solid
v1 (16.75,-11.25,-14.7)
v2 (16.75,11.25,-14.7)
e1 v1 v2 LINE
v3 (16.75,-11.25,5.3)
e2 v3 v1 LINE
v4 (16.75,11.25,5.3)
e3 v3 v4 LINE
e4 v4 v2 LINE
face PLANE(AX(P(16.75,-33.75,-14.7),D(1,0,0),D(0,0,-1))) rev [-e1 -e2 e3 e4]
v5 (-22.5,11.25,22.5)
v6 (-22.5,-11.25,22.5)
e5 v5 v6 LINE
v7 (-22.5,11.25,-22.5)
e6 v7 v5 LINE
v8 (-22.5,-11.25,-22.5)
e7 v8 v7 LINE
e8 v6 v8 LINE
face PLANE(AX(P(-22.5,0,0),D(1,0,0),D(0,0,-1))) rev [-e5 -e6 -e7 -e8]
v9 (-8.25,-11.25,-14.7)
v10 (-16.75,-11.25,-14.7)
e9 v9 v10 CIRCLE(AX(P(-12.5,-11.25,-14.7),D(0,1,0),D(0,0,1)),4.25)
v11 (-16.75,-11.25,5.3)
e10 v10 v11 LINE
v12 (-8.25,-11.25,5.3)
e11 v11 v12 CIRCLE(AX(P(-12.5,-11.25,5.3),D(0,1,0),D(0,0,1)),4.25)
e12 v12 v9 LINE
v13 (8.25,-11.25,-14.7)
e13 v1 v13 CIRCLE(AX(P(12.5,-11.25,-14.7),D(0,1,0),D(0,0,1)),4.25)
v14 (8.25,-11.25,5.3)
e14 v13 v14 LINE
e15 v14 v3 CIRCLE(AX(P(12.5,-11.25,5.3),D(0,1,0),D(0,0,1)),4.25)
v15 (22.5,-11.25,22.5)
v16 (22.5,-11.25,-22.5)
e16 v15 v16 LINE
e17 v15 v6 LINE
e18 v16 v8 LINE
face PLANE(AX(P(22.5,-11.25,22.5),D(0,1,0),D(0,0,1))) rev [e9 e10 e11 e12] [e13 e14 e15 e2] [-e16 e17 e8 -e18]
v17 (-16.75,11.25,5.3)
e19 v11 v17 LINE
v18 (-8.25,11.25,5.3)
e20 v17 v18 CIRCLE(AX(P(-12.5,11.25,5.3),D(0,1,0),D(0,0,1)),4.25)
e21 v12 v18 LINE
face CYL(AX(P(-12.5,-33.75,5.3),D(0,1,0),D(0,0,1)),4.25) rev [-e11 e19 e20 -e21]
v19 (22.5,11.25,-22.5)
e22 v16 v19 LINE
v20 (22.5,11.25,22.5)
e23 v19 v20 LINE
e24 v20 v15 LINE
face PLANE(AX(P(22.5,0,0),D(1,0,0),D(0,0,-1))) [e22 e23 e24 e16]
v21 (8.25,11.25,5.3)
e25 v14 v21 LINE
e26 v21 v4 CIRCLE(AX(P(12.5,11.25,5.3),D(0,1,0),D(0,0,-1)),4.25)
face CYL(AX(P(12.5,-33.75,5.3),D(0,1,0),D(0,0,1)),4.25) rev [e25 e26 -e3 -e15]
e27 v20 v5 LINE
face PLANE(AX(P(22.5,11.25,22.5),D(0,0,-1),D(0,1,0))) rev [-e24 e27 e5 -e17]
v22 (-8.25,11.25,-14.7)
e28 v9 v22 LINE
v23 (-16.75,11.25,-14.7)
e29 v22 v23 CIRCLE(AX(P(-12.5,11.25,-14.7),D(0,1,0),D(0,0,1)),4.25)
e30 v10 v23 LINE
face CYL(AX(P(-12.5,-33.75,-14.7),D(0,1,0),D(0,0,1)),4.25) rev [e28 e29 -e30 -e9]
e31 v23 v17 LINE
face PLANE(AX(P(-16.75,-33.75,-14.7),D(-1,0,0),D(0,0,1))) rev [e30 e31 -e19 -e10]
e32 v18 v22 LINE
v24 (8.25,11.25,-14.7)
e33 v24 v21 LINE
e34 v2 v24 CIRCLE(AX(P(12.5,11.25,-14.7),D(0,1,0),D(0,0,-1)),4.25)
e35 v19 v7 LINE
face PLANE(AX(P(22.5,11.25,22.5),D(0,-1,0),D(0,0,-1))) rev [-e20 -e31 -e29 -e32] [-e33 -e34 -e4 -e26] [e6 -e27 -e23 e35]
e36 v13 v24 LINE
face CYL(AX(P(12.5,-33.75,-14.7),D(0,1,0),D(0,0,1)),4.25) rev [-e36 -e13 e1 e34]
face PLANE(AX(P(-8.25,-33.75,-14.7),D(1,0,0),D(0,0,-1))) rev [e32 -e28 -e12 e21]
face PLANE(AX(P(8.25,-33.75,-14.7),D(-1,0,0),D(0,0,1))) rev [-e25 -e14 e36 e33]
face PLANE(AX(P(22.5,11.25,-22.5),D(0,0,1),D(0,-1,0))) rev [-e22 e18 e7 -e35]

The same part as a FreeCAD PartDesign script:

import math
import FreeCAD as App
import Part
import Sketcher

V = App.Vector
Q = App.Units.Quantity


def add_polygon(sketch, points):
    """Adds a closed chain of lines whose ends are joined by coincident constraints."""
    first, n = sketch.GeometryCount, len(points)
    for a, b in zip(points, points[1:] + points[:1]):
        sketch.addGeometry(Part.LineSegment(App.Vector(*a, 0), App.Vector(*b, 0)), False)
    for i in range(n):
        sketch.addConstraint(Sketcher.Constraint("Coincident", first + i, 2, first + (i + 1) % n, 1))

doc = App.newDocument("Part")
body = doc.addObject("PartDesign::Body", "Body")

sketch1 = body.newObject("Sketcher::SketchObject", "Sketch")
sketch1.AttachmentSupport = (doc.getObject("YZ_Plane"), [""])
sketch1.MapMode = "FlatFace"
add_polygon(sketch1, [(11, 22), (-11, 22), (-11, -22), (11, -22)])
sketch1.addConstraint([
    Sketcher.Constraint("Horizontal", 0),
    Sketcher.Constraint("Vertical", 1),
    Sketcher.Constraint("Horizontal", 2),
    Sketcher.Constraint("Vertical", 3),
    Sketcher.Constraint("Symmetric", 0, 2, 2, 2, -1, 1),
    Sketcher.Constraint("DistanceY", 1, 2, 1, 1, Q("45 mm")),
    Sketcher.Constraint("DistanceX", 0, 2, 0, 1, Q("22.5 mm")),
])
pad1 = body.newObject("PartDesign::Pad", "Pad")
pad1.Profile = sketch1
pad1.Length = 45
pad1.Midplane = True

sketch2 = body.newObject("Sketcher::SketchObject", "Sketch001")
sketch2.AttachmentSupport = (doc.getObject("XZ_Plane"), [""])
sketch2.MapMode = "FlatFace"
sketch2.AttachmentOffset = App.Placement(V(0, 0, -11.25), App.Rotation())
sketch2.addGeometry([
    Part.LineSegment(V(-8.2, 5.3, 0), V(-8.2, -14.7, 0)),
    Part.ArcOfCircle(Part.Circle(V(-12.5, -14.7, 0), V(0, 0, 1), 4.2), math.radians(180), math.radians(360)),
    Part.LineSegment(V(-16.8, -14.7, 0), V(-16.8, 5.3, 0)),
    Part.ArcOfCircle(Part.Circle(V(-12.5, 5.3, 0), V(0, 0, 1), 4.2), math.radians(0), math.radians(180)),
    Part.LineSegment(V(8.2, -14.7, 0), V(8.2, 5.3, 0)),
    Part.ArcOfCircle(Part.Circle(V(12.5, 5.3, 0), V(0, 0, 1), 4.2), math.radians(0), math.radians(180)),
    Part.LineSegment(V(16.8, 5.3, 0), V(16.8, -14.7, 0)),
    Part.ArcOfCircle(Part.Circle(V(12.5, -14.7, 0), V(0, 0, 1), 4.2), math.radians(180), math.radians(360)),
], False)
sketch2.addConstraint([
    Sketcher.Constraint("Tangent", 0, 2, 1, 2),
    Sketcher.Constraint("Tangent", 1, 1, 2, 1),
    Sketcher.Constraint("Tangent", 2, 2, 3, 2),
    Sketcher.Constraint("Tangent", 3, 1, 0, 1),
    Sketcher.Constraint("Tangent", 4, 2, 5, 2),
    Sketcher.Constraint("Tangent", 5, 1, 6, 1),
    Sketcher.Constraint("Tangent", 6, 2, 7, 2),
    Sketcher.Constraint("Tangent", 7, 1, 4, 1),
    Sketcher.Constraint("Vertical", 0),
    Sketcher.Constraint("Vertical", 2),
    Sketcher.Constraint("Vertical", 4),
    Sketcher.Constraint("Vertical", 6),
    Sketcher.Constraint("Equal", 3, 5),
    Sketcher.Constraint("Symmetric", 3, 3, 5, 3, -2),
    Sketcher.Constraint("Horizontal", 1, 3, 7, 3),
    Sketcher.Constraint("DistanceY", 0, 2, 0, 1, Q("20 mm")),
    Sketcher.Constraint("Radius", 1, Q("4.25 mm")),
    Sketcher.Constraint("DistanceX", 3, 3, 5, 3, Q("25 mm")),
    Sketcher.Constraint("DistanceY", 1, 3, -1, 1, Q("14.7 mm")),
])
pocket1 = body.newObject("PartDesign::Pocket", "Pocket")
pocket1.Profile = sketch2
pocket1.Length = 45
pocket1.Reversed = True

doc.recompute()
